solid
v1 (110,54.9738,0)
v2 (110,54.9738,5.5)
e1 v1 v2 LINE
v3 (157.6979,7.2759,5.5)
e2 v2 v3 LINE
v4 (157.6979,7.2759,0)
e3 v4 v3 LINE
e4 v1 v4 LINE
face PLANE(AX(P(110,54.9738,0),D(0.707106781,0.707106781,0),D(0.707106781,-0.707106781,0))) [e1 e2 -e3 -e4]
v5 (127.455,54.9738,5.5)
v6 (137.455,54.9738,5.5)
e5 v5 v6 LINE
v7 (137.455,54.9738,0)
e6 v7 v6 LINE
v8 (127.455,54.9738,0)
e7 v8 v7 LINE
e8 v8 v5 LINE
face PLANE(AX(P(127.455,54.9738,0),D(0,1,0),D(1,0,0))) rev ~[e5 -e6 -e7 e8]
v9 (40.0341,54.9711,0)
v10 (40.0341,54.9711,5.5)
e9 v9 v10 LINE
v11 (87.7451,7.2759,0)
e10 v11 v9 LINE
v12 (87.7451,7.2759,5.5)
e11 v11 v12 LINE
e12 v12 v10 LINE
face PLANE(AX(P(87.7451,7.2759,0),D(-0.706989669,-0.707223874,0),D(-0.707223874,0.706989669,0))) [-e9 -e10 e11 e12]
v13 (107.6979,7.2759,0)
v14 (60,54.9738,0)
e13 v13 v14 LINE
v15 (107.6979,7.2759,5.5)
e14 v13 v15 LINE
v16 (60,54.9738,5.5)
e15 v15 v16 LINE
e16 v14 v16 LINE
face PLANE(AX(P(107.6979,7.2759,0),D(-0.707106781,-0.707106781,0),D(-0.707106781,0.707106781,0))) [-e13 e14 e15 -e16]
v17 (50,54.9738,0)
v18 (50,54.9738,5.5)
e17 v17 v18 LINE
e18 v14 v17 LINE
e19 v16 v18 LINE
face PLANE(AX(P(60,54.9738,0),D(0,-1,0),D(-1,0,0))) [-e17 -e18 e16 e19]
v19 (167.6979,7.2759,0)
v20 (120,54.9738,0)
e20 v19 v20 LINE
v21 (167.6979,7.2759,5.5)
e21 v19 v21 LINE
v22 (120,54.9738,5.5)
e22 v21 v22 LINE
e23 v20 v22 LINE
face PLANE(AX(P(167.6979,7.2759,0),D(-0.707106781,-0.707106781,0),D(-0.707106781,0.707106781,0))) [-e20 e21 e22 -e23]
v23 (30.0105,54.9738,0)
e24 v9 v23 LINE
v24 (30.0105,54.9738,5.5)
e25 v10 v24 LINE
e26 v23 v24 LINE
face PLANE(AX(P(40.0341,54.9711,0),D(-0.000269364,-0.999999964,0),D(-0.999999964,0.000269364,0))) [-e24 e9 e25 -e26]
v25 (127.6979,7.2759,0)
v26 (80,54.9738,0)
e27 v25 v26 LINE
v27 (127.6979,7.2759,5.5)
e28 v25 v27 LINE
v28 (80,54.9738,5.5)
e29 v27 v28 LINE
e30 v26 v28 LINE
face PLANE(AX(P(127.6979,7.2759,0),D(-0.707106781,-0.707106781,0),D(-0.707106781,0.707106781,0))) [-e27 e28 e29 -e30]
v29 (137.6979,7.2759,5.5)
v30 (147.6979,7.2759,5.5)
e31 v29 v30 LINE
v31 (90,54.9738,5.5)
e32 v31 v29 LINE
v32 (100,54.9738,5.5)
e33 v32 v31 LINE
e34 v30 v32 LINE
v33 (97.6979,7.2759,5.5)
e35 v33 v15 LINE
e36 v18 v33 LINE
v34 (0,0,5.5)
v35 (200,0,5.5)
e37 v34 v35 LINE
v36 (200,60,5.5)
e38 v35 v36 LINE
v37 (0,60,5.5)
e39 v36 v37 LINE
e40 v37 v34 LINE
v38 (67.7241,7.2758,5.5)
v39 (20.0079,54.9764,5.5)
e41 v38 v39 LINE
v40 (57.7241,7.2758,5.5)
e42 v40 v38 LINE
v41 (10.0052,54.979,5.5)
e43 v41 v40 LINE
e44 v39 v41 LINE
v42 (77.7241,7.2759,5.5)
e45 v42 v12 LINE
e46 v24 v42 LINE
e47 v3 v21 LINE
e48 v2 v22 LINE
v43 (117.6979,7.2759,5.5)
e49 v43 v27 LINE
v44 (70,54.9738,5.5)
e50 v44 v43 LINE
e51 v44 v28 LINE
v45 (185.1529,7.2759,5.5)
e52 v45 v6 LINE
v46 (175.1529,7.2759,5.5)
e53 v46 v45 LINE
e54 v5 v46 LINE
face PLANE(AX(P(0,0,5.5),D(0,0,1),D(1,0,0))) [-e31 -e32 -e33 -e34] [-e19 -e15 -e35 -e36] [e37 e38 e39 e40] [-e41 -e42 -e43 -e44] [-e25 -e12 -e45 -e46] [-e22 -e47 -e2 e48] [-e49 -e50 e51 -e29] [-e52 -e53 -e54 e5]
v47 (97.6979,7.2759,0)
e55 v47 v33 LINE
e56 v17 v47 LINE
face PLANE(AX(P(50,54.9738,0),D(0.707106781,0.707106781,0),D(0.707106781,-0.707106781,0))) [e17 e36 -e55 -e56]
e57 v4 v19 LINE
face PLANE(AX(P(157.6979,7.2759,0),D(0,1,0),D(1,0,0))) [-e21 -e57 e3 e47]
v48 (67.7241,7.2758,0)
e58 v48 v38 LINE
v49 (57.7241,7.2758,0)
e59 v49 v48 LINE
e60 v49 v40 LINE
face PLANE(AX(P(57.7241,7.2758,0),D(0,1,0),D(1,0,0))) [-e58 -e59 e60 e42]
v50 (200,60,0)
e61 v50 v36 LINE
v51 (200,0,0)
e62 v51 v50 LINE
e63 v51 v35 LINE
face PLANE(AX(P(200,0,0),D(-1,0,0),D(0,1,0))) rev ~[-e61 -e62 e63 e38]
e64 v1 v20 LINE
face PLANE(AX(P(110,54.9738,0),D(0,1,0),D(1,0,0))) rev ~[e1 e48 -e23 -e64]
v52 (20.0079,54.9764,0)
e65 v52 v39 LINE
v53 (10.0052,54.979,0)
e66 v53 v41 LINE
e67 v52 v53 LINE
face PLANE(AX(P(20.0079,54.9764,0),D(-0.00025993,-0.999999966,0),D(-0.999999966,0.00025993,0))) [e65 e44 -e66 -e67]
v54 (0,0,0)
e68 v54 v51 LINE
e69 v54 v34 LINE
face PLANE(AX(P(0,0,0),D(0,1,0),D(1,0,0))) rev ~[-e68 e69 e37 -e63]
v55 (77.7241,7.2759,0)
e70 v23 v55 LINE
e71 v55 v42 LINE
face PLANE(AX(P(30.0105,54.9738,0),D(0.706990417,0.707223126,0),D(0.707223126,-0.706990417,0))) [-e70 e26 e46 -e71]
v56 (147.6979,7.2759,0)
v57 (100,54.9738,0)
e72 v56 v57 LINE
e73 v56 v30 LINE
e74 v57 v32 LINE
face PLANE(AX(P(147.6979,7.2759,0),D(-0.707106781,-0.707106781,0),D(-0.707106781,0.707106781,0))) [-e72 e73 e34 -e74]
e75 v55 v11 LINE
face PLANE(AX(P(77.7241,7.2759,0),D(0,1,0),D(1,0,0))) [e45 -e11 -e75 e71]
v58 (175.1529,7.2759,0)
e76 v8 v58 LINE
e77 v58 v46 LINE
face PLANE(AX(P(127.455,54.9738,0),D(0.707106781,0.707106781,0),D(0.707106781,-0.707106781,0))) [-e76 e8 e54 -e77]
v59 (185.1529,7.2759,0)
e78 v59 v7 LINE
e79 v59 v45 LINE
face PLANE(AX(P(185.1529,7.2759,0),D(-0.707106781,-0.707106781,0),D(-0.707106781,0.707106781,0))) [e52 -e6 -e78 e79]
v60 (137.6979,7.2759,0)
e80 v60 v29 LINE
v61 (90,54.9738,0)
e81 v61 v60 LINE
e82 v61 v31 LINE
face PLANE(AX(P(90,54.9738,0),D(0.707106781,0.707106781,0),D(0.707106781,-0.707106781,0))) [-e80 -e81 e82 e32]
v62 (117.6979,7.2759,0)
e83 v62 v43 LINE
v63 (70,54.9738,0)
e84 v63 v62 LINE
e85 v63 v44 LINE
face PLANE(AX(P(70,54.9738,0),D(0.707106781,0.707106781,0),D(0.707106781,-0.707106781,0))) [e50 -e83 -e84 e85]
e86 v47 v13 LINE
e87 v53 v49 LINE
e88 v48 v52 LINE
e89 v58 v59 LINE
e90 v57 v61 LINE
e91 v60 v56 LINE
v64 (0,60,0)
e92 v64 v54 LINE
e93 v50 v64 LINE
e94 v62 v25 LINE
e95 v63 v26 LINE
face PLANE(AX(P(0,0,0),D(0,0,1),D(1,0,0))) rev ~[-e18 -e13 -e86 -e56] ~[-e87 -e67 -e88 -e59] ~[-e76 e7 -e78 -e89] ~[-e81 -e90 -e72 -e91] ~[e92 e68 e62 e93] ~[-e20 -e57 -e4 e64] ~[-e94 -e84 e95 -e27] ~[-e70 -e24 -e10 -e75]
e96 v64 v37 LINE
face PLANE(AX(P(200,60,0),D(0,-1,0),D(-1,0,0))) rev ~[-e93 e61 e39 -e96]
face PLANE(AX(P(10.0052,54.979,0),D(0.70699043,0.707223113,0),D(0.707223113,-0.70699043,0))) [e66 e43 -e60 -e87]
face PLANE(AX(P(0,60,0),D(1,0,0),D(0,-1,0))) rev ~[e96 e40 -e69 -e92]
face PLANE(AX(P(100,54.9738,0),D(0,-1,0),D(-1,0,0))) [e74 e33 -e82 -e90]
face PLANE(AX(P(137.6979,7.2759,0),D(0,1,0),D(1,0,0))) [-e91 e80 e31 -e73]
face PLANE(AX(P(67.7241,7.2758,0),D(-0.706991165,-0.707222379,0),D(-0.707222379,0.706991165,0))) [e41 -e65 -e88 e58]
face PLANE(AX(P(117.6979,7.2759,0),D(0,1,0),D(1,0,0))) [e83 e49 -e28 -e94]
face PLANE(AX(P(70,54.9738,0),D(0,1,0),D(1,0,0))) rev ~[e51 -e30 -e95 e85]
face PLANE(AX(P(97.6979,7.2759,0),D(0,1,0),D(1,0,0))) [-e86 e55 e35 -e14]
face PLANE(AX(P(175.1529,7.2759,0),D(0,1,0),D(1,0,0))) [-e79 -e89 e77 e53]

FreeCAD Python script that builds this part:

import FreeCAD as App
import Part
import Sketcher

V = App.Vector

doc = App.newDocument("Part")
body = doc.addObject("PartDesign::Body", "Body")

sketch1 = body.newObject("Sketcher::SketchObject", "Sketch")
sketch1.AttachmentSupport = (doc.getObject("XY_Plane"), [""])
sketch1.MapMode = "FlatFace"
sketch1.addGeometry([
    Part.LineSegment(V(0, 60, 0), V(0, 0, 0)),
    Part.LineSegment(V(0, 0, 0), V(200, 0, 0)),
    Part.LineSegment(V(200, 0, 0), V(200, 60, 0)),
    Part.LineSegment(V(200, 60, 0), V(0, 60, 0)),
    Part.LineSegment(V(67.7241, 7.2758, 0), V(57.7241, 7.2758, 0)),
    Part.LineSegment(V(57.7241, 7.2758, 0), V(10.0052, 54.979, 0)),
    Part.LineSegment(V(10.0052, 54.979, 0), V(20.0079, 54.9764, 0)),
    Part.LineSegment(V(20.0079, 54.9764, 0), V(67.7241, 7.2758, 0)),
    Part.LineSegment(V(87.7451, 7.2759, 0), V(77.7241, 7.2759, 0)),
    Part.LineSegment(V(77.7241, 7.2759, 0), V(30.0105, 54.9738, 0)),
    Part.LineSegment(V(30.0105, 54.9738, 0), V(40.0341, 54.9711, 0)),
    Part.LineSegment(V(40.0341, 54.9711, 0), V(87.7451, 7.2759, 0)),
    Part.LineSegment(V(97.6979, 7.2759, 0), V(50, 54.9738, 0)),
    Part.LineSegment(V(50, 54.9738, 0), V(60, 54.9738, 0)),
    Part.LineSegment(V(60, 54.9738, 0), V(107.6979, 7.2759, 0)),
    Part.LineSegment(V(107.6979, 7.2759, 0), V(97.6979, 7.2759, 0)),
    Part.LineSegment(V(117.6979, 7.2759, 0), V(70, 54.9738, 0)),
    Part.LineSegment(V(70, 54.9738, 0), V(80, 54.9738, 0)),
    Part.LineSegment(V(80, 54.9738, 0), V(127.6979, 7.2759, 0)),
    Part.LineSegment(V(127.6979, 7.2759, 0), V(117.6979, 7.2759, 0)),
    Part.LineSegment(V(137.6979, 7.2759, 0), V(90, 54.9738, 0)),
    Part.LineSegment(V(90, 54.9738, 0), V(100, 54.9738, 0)),
    Part.LineSegment(V(100, 54.9738, 0), V(147.6979, 7.2759, 0)),
    Part.LineSegment(V(147.6979, 7.2759, 0), V(137.6979, 7.2759, 0)),
    Part.LineSegment(V(157.6979, 7.2759, 0), V(110, 54.9738, 0)),
    Part.LineSegment(V(110, 54.9738, 0), V(120, 54.9738, 0)),
    Part.LineSegment(V(120, 54.9738, 0), V(167.6979, 7.2759, 0)),
    Part.LineSegment(V(167.6979, 7.2759, 0), V(157.6979, 7.2759, 0)),
    Part.LineSegment(V(175.1529, 7.2759, 0), V(127.455, 54.9738, 0)),
    Part.LineSegment(V(127.455, 54.9738, 0), V(137.455, 54.9738, 0)),
    Part.LineSegment(V(137.455, 54.9738, 0), V(185.1529, 7.2759, 0)),
    Part.LineSegment(V(185.1529, 7.2759, 0), V(175.1529, 7.2759, 0)),
], False)
sketch1.addConstraint([
    Sketcher.Constraint("Coincident", 0, 2, 1, 1),
    Sketcher.Constraint("Coincident", 1, 2, 2, 1),
    Sketcher.Constraint("Coincident", 2, 2, 3, 1),
    Sketcher.Constraint("Coincident", 3, 2, 0, 1),
    Sketcher.Constraint("Coincident", 4, 2, 5, 1),
    Sketcher.Constraint("Coincident", 5, 2, 6, 1),
    Sketcher.Constraint("Coincident", 6, 2, 7, 1),
    Sketcher.Constraint("Coincident", 7, 2, 4, 1),
    Sketcher.Constraint("Coincident", 8, 2, 9, 1),
    Sketcher.Constraint("Coincident", 9, 2, 10, 1),
    Sketcher.Constraint("Coincident", 10, 2, 11, 1),
    Sketcher.Constraint("Coincident", 11, 2, 8, 1),
    Sketcher.Constraint("Coincident", 12, 2, 13, 1),
    Sketcher.Constraint("Coincident", 13, 2, 14, 1),
    Sketcher.Constraint("Coincident", 14, 2, 15, 1),
    Sketcher.Constraint("Coincident", 15, 2, 12, 1),
    Sketcher.Constraint("Coincident", 16, 2, 17, 1),
    Sketcher.Constraint("Coincident", 17, 2, 18, 1),
    Sketcher.Constraint("Coincident", 18, 2, 19, 1),
    Sketcher.Constraint("Coincident", 19, 2, 16, 1),
    Sketcher.Constraint("Coincident", 20, 2, 21, 1),
    Sketcher.Constraint("Coincident", 21, 2, 22, 1),
    Sketcher.Constraint("Coincident", 22, 2, 23, 1),
    Sketcher.Constraint("Coincident", 23, 2, 20, 1),
    Sketcher.Constraint("Coincident", 24, 2, 25, 1),
    Sketcher.Constraint("Coincident", 25, 2, 26, 1),
    Sketcher.Constraint("Coincident", 26, 2, 27, 1),
    Sketcher.Constraint("Coincident", 27, 2, 24, 1),
    Sketcher.Constraint("Coincident", 28, 2, 29, 1),
    Sketcher.Constraint("Coincident", 29, 2, 30, 1),
    Sketcher.Constraint("Coincident", 30, 2, 31, 1),
    Sketcher.Constraint("Coincident", 31, 2, 28, 1),
    Sketcher.Constraint("Vertical", 0),
    Sketcher.Constraint("Horizontal", 1),
    Sketcher.Constraint("Vertical", 2),
    Sketcher.Constraint("Horizontal", 3),
    Sketcher.Constraint("Horizontal", 4),
    Sketcher.Constraint("Horizontal", 8),
    Sketcher.Constraint("Horizontal", 13),
    Sketcher.Constraint("Horizontal", 15),
    Sketcher.Constraint("Horizontal", 17),
    Sketcher.Constraint("Horizontal", 19),
    Sketcher.Constraint("Horizontal", 21),
    Sketcher.Constraint("Horizontal", 23),
    Sketcher.Constraint("Horizontal", 25),
    Sketcher.Constraint("Horizontal", 27),
    Sketcher.Constraint("Horizontal", 29),
    Sketcher.Constraint("Horizontal", 31),
    Sketcher.Constraint("Coincident", 0, 2, -1, 1),
    Sketcher.Constraint("DistanceX", 1, 1, 1, 2, 200.0),
    Sketcher.Constraint("DistanceX", 4, 2, 4, 1, 10.0),
    Sketcher.Constraint("DistanceX", 13, 1, 13, 2, 10.0),
    Sketcher.Constraint("DistanceX", 15, 2, 15, 1, 10.0),
    Sketcher.Constraint("DistanceX", 17, 1, 17, 2, 10.0),
    Sketcher.Constraint("DistanceX", 19, 2, 19, 1, 10.0),
    Sketcher.Constraint("DistanceX", 21, 1, 21, 2, 10.0),
    Sketcher.Constraint("DistanceX", 23, 2, 23, 1, 10.0),
    Sketcher.Constraint("DistanceX", 25, 1, 25, 2, 10.0),
    Sketcher.Constraint("DistanceX", 27, 2, 27, 1, 10.0),
    Sketcher.Constraint("DistanceX", 29, 1, 29, 2, 10.0),
    Sketcher.Constraint("DistanceX", 31, 2, 31, 1, 10.0),
    Sketcher.Constraint("DistanceY", 0, 2, 0, 1, 60.0),
    Sketcher.Constraint("DistanceX", -1, 1, 13, 2, 60.0),
    Sketcher.Constraint("DistanceX", 7, 2, 8, 2, 10.0),
    Sketcher.Constraint("DistanceX", 13, 2, 16, 2, 10.0),
    Sketcher.Constraint("DistanceX", 14, 2, 19, 2, 10.0),
    Sketcher.Constraint("DistanceX", 17, 2, 20, 2, 10.0),
    Sketcher.Constraint("DistanceX", 18, 2, 23, 2, 10.0),
    Sketcher.Constraint("DistanceX", 21, 2, 24, 2, 10.0),
    Sketcher.Constraint("DistanceX", 22, 2, 27, 2, 10.0),
    Sketcher.Constraint("DistanceX", 8, 2, 8, 1, 10.021),
    Sketcher.Constraint("DistanceX", 10, 2, 4, 2, 17.69),
    Sketcher.Constraint("Distance", 9, 67.466),
    Sketcher.Constraint("Distance", 12, 67.455),
    Sketcher.Constraint("Distance", 16, 67.455),
    Sketcher.Constraint("Distance", 20, 67.455),
    Sketcher.Constraint("Distance", 24, 67.455),
    Sketcher.Constraint("Distance", 28, 67.455),
    Sketcher.Constraint("DistanceX", -1, 1, 4, 2, 57.724),
    Sketcher.Constraint("DistanceY", -1, 1, 5, 2, 54.979),
    Sketcher.Constraint("DistanceX", -1, 1, 6, 2, 20.008),
    Sketcher.Constraint("DistanceY", -1, 1, 8, 2, 7.276),
    Sketcher.Constraint("DistanceY", -1, 1, 10, 2, 54.971),
    Sketcher.Constraint("DistanceX", -1, 1, 14, 2, 107.698),
    Sketcher.Constraint("DistanceY", -1, 1, 14, 2, 7.276),
    Sketcher.Constraint("DistanceY", -1, 1, 18, 2, 7.276),
    Sketcher.Constraint("DistanceY", -1, 1, 22, 2, 7.276),
    Sketcher.Constraint("DistanceY", -1, 1, 26, 2, 7.276),
    Sketcher.Constraint("DistanceX", -1, 1, 28, 2, 127.455),
    Sketcher.Constraint("DistanceX", -1, 1, 30, 2, 185.153),
    Sketcher.Constraint("DistanceY", -1, 1, 30, 2, 7.276),
    Sketcher.Constraint("DistanceX", 5, 2, 4, 2, 47.719),
    Sketcher.Constraint("DistanceY", 4, 2, 9, 2, 47.698),
    Sketcher.Constraint("DistanceY", 11, 2, 9, 2, 47.698),
    Sketcher.Constraint("Distance", 7, 67.4699),
])
pad1 = body.newObject("PartDesign::Pad", "Pad")
pad1.Profile = sketch1
pad1.Length = 5.5

doc.recompute()
